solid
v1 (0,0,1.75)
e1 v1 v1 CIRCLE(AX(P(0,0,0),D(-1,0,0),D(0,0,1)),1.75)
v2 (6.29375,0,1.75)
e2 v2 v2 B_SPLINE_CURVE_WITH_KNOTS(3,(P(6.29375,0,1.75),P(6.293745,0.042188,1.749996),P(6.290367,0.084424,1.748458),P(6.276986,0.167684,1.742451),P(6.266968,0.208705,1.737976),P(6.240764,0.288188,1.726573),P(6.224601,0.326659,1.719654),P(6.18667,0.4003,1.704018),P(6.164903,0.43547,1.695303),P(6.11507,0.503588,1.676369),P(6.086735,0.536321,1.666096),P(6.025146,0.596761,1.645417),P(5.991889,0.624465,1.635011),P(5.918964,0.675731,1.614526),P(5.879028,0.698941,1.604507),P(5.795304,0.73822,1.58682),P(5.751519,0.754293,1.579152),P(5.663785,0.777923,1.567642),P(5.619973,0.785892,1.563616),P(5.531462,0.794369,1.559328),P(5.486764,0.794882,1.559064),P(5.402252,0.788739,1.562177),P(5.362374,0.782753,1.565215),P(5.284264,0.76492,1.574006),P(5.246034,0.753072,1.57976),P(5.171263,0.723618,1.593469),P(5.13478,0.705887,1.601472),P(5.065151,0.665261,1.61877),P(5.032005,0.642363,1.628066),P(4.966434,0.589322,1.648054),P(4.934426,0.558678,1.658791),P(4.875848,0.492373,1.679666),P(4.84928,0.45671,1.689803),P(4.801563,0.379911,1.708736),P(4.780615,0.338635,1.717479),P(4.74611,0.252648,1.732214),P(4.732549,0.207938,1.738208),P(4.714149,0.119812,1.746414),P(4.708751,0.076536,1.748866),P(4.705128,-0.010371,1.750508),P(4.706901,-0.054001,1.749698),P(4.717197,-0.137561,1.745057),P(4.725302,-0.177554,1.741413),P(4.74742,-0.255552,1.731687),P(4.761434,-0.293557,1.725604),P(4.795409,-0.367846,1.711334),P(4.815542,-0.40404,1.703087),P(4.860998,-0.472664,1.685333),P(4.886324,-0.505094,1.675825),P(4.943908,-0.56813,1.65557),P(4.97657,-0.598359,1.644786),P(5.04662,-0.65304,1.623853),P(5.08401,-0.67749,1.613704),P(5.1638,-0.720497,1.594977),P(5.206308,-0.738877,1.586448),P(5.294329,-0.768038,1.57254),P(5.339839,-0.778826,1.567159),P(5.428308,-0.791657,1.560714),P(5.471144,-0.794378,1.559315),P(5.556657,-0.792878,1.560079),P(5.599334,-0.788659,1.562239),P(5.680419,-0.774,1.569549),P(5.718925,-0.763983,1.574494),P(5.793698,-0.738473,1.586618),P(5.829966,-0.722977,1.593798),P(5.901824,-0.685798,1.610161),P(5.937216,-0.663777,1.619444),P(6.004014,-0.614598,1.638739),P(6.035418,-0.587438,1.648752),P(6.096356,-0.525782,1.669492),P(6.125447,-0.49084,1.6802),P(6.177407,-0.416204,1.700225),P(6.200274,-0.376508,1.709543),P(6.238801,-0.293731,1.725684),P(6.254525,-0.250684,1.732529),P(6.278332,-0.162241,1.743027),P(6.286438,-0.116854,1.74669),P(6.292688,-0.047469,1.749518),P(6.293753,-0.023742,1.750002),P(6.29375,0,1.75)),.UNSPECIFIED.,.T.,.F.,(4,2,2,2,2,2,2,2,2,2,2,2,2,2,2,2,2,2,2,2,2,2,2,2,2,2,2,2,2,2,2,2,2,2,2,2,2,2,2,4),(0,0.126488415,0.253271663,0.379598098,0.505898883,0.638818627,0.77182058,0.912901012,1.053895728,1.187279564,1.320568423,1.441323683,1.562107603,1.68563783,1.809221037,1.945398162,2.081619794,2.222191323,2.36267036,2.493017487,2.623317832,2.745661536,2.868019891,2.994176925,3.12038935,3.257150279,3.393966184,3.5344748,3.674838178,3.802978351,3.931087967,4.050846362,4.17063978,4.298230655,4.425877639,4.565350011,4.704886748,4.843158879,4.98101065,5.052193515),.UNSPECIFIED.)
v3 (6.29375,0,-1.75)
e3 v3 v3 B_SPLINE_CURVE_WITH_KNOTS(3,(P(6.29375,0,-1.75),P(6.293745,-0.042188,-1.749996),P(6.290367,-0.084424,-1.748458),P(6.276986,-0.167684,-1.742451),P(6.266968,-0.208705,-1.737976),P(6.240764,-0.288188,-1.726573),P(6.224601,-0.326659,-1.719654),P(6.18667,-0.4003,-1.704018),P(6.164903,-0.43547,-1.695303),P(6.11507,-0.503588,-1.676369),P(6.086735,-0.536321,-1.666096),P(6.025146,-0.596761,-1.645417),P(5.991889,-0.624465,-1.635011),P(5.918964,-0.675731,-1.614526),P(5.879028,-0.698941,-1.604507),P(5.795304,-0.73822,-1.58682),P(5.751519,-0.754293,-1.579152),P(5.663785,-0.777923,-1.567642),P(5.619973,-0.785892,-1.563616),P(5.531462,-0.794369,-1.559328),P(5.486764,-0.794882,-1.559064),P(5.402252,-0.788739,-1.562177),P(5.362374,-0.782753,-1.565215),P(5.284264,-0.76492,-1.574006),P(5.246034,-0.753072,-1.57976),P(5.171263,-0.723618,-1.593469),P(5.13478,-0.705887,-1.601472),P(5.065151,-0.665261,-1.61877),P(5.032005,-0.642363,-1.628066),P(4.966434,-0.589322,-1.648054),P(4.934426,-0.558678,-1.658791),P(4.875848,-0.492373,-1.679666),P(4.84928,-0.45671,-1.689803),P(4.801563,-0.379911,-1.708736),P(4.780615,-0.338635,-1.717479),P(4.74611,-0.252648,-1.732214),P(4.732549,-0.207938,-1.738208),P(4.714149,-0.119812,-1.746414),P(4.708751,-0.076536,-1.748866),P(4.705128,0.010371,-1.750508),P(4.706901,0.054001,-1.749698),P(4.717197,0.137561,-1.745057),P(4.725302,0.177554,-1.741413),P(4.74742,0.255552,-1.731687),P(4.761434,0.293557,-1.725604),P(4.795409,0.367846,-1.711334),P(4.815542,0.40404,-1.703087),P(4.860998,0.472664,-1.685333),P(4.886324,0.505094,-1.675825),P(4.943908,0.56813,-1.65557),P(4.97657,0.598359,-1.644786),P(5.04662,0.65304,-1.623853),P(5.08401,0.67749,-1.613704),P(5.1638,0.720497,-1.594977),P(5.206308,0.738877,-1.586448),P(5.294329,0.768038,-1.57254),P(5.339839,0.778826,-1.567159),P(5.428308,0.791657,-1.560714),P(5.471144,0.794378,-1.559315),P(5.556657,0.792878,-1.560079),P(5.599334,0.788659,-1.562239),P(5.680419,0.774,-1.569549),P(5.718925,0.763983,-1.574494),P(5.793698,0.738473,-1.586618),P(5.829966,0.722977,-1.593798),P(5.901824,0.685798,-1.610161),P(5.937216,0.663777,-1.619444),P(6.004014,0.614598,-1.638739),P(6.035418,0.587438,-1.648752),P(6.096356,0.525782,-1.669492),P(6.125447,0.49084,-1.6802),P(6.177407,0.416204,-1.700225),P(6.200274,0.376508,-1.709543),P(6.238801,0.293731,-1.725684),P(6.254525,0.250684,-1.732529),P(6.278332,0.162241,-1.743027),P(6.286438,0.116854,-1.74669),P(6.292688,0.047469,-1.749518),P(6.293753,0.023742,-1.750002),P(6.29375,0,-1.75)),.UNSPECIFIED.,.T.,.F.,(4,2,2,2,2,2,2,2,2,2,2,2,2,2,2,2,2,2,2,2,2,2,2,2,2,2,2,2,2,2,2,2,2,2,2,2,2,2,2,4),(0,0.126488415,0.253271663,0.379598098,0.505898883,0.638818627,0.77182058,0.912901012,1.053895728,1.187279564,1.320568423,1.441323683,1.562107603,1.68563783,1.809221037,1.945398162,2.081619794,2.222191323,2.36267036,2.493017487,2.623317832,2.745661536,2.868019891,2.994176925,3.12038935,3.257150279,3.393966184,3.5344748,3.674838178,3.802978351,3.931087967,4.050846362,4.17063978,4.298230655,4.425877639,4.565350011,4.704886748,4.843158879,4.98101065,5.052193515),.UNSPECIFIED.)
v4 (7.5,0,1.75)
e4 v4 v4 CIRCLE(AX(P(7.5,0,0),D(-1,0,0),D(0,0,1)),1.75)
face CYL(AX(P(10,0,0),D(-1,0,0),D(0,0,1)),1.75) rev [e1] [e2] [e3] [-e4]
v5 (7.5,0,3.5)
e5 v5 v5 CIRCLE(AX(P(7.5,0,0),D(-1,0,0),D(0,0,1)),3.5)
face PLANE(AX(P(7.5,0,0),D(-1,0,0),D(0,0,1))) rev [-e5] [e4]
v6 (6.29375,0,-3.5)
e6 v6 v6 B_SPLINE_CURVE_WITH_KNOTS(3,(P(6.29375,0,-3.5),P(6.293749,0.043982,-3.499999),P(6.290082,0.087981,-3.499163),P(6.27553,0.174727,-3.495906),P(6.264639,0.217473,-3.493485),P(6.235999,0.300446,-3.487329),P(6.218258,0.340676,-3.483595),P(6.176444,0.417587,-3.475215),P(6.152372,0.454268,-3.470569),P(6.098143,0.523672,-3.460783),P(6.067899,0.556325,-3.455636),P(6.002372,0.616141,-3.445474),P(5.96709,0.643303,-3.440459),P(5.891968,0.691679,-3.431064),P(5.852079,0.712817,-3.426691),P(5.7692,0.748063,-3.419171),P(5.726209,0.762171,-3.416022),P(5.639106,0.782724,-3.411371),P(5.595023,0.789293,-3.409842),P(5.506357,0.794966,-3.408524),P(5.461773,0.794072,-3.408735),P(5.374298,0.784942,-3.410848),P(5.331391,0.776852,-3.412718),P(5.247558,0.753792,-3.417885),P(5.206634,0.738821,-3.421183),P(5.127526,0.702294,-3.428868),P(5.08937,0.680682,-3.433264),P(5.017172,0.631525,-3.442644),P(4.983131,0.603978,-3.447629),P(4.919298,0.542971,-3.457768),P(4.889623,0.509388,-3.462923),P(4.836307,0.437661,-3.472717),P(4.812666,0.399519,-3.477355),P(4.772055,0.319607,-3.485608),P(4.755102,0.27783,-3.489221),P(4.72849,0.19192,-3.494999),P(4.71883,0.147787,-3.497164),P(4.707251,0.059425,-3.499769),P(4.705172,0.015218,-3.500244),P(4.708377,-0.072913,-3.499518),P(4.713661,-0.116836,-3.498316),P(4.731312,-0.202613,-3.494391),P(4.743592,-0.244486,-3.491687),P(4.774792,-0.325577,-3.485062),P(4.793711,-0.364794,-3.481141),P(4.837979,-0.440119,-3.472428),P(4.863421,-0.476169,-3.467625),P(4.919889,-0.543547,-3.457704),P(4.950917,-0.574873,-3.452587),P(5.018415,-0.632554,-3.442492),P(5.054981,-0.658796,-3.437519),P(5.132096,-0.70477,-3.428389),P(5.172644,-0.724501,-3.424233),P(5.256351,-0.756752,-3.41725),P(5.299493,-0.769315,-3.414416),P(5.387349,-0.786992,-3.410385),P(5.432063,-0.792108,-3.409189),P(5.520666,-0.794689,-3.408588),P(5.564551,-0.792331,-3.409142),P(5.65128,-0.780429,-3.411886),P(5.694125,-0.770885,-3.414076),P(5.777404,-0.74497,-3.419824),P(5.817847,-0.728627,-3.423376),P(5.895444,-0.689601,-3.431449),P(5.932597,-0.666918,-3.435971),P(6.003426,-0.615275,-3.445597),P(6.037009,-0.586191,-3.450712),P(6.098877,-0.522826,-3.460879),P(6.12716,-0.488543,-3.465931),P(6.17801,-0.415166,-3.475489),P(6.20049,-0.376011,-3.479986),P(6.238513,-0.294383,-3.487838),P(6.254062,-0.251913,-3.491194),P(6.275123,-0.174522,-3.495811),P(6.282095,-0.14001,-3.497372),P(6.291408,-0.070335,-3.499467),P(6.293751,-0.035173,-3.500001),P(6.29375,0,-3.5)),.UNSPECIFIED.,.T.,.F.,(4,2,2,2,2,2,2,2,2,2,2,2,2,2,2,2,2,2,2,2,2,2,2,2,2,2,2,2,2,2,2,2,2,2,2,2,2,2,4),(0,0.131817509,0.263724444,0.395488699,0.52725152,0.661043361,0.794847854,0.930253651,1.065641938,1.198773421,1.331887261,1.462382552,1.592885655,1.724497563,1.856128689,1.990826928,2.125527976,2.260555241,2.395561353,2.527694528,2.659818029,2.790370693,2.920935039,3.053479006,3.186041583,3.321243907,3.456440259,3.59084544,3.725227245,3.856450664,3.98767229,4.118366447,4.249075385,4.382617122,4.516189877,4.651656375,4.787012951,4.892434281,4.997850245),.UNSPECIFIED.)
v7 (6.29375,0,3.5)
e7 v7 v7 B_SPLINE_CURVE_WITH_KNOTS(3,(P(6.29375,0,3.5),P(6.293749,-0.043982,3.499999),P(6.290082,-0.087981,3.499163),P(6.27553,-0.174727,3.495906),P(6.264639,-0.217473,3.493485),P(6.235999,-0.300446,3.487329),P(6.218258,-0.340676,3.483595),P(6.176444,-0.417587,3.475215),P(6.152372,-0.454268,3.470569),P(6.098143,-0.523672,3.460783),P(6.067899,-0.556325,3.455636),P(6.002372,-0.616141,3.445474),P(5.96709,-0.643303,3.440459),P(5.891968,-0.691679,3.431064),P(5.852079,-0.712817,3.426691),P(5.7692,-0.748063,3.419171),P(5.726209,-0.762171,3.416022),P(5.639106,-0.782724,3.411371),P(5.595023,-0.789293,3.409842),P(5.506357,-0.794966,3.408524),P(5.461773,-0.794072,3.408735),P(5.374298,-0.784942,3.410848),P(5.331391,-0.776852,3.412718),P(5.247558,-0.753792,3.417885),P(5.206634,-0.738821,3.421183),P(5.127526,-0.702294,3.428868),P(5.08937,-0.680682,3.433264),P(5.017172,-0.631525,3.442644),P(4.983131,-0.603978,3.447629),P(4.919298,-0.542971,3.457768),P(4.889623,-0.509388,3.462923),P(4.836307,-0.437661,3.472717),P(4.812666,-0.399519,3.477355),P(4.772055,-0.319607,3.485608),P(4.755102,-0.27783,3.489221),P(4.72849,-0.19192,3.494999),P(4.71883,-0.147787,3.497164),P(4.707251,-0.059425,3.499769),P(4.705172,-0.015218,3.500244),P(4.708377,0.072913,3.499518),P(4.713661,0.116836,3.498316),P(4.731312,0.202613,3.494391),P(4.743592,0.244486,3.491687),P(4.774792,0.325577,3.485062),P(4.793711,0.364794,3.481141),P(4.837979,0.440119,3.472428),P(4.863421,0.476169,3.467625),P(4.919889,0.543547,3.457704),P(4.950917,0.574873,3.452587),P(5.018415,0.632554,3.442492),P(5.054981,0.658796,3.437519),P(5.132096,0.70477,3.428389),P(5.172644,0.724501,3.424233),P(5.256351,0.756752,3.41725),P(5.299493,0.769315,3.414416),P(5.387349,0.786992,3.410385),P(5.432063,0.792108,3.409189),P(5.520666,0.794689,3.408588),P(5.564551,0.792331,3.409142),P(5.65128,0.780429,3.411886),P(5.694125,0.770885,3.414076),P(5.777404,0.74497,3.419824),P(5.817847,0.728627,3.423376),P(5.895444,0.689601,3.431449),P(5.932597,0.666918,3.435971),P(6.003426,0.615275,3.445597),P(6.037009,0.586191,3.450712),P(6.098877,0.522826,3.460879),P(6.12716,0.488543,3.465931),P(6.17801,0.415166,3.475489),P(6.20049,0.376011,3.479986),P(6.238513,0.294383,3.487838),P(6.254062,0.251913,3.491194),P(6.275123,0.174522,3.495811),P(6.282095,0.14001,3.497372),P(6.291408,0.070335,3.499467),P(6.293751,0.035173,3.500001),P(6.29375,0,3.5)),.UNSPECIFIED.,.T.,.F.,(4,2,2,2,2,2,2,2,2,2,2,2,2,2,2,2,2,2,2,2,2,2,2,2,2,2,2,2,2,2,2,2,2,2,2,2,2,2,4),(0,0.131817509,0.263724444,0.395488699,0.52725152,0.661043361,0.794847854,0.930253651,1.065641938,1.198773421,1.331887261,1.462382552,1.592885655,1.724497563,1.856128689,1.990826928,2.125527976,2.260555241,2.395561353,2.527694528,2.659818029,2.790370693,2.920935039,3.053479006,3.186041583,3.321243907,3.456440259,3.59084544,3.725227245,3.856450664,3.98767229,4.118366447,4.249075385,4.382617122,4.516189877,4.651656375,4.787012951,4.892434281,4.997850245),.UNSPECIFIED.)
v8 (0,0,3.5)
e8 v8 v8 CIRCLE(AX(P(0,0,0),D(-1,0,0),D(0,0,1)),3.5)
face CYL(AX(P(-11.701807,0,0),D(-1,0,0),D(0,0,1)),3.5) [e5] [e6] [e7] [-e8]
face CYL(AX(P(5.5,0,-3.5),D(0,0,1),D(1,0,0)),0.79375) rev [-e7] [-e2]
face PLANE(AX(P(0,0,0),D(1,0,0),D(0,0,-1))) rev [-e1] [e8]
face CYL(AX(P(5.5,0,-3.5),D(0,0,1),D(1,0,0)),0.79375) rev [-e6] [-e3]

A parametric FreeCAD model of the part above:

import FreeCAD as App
import Part
import Sketcher
Q = App.Units.Quantity


def add_polygon(sketch, points):
    """Adds a closed chain of lines whose ends are joined by coincident constraints."""
    first, n = sketch.GeometryCount, len(points)
    for a, b in zip(points, points[1:] + points[:1]):
        sketch.addGeometry(Part.LineSegment(App.Vector(*a, 0), App.Vector(*b, 0)), False)
    for i in range(n):
        sketch.addConstraint(Sketcher.Constraint("Coincident", first + i, 2, first + (i + 1) % n, 1))

doc = App.newDocument("Part")
body = doc.addObject("PartDesign::Body", "Body")

# Sketch on XY plane
sketch1 = doc.addObject("Sketcher::SketchObject", "Sketch")
body.addObject(sketch1)
sketch1.AttachmentSupport = (doc.XY_Plane, [""])
sketch1.MapMode = "FlatFace"
add_polygon(sketch1, [(0, 3.5), (0, 0), (7.5, 0), (7.5, 3.5)])  # lines 0-3
sketch1.addConstraint([
    Sketcher.Constraint("Vertical", 0),
    Sketcher.Constraint("Horizontal", 1),
    Sketcher.Constraint("Vertical", 2),
    Sketcher.Constraint("Horizontal", 3),
    Sketcher.Constraint("Coincident", 0, 2, -1, 1),
    Sketcher.Constraint("DistanceX", 1, 1, 1, 2, Q("7.5 mm")),
    Sketcher.Constraint("DistanceY", 0, 2, 0, 1, Q("3.5 mm")),
])
revolution = doc.addObject("PartDesign::Revolution", "Revolution")
body.addObject(revolution)
revolution.Profile = sketch1
revolution.ReferenceAxis = (sketch1, ["H_Axis"])
revolution.Angle = 360

# Sketch on YZ plane
sketch2 = doc.addObject("Sketcher::SketchObject", "Sketch001")
body.addObject(sketch2)
sketch2.AttachmentSupport = (doc.YZ_Plane, [""])
sketch2.MapMode = "FlatFace"
sketch2.addGeometry(Part.Circle(App.Vector(0, 0, 0), App.Vector(0, 0, 1), 1.8), False)
sketch2.addConstraint([
    Sketcher.Constraint("Coincident", 0, 3, -1, 1),
    Sketcher.Constraint("Diameter", 0, Q("3.5 mm")),
])
pocket1 = doc.addObject("PartDesign::Pocket", "Pocket")
body.addObject(pocket1)
pocket1.Profile = sketch2
pocket1.Length = 10
pocket1.Reversed = True

# Sketch on XY plane
sketch3 = doc.addObject("Sketcher::SketchObject", "Sketch002")
body.addObject(sketch3)
sketch3.AttachmentSupport = (doc.XY_Plane, [""])
sketch3.MapMode = "FlatFace"
sketch3.addGeometry(Part.Circle(App.Vector(5.5, 0, 0), App.Vector(0, 0, 1), 0.8), False)
sketch3.addConstraint([
    Sketcher.Constraint("PointOnObject", 0, 3, -1),
    Sketcher.Constraint("Diameter", 0, Q("1.5875 mm")),
    Sketcher.Constraint("DistanceX", -1, 1, 0, 3, Q("5.5 mm")),
])
pocket2 = doc.addObject("PartDesign::Pocket", "Pocket001")
body.addObject(pocket2)
pocket2.Profile = sketch3
pocket2.Type = "ThroughAll"
pocket2.Midplane = True

doc.recompute()
